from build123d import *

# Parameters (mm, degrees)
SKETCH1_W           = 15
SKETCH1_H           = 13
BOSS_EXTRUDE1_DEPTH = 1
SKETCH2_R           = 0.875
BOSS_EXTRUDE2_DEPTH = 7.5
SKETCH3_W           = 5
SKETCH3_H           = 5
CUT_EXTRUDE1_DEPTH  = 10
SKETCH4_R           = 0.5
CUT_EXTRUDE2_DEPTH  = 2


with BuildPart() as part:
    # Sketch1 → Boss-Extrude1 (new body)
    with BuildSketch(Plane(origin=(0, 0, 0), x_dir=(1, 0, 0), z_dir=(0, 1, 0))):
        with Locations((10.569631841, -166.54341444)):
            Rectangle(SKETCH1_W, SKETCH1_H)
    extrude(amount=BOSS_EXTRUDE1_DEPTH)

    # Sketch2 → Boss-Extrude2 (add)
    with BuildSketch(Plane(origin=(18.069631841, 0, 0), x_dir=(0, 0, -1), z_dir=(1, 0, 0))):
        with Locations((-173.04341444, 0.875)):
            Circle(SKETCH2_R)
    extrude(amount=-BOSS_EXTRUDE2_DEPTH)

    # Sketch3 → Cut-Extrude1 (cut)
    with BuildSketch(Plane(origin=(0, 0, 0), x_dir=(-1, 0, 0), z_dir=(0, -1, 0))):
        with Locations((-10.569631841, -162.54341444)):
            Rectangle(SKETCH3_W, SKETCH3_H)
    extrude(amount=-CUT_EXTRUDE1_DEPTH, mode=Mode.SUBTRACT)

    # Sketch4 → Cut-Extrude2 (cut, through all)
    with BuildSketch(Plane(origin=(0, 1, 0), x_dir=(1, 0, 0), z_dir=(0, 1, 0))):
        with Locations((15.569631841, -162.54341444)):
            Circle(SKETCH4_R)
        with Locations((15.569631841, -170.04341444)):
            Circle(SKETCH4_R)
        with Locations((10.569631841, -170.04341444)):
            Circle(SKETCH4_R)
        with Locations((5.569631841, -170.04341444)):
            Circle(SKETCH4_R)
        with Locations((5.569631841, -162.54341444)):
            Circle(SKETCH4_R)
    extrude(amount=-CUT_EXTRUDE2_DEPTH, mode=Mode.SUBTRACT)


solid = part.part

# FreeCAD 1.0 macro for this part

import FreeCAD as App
import Part
import Sketcher
from FreeCAD import Vector
Q = App.Units.Quantity

doc = App.newDocument("Part")
body = doc.addObject("PartDesign::Body", "Body")

# Sketch on XZ plane
sketch1 = body.newObject("Sketcher::SketchObject", "Sketch")
sketch1.AttachmentSupport = (doc.getObject("XZ_Plane"), [""])
sketch1.MapMode = "FlatFace"
sketch1.addGeometry([
    Part.LineSegment(Vector(3, 160, 0), Vector(3, 173, 0)),
    Part.LineSegment(Vector(3, 173, 0), Vector(18, 173, 0)),
    Part.LineSegment(Vector(18, 173, 0), Vector(18, 160, 0)),
    Part.LineSegment(Vector(18, 160, 0), Vector(3, 160, 0)),
], False)
sketch1.addConstraint([
    Sketcher.Constraint("Coincident", 0, 2, 1, 1),
    Sketcher.Constraint("Coincident", 1, 2, 2, 1),
    Sketcher.Constraint("Coincident", 2, 2, 3, 1),
    Sketcher.Constraint("Coincident", 3, 2, 0, 1),
    Sketcher.Constraint("Vertical", 0),
    Sketcher.Constraint("Horizontal", 1),
    Sketcher.Constraint("Vertical", 2),
    Sketcher.Constraint("Horizontal", 3),
    Sketcher.Constraint("DistanceX", 1, 1, 1, 2, Q("15 mm")),
    Sketcher.Constraint("DistanceY", 0, 1, 0, 2, Q("13 mm")),
    Sketcher.Constraint("DistanceX", -1, 1, 0, 2, Q("3.069632 mm")),
    Sketcher.Constraint("DistanceY", -1, 1, 0, 2, Q("173.043414 mm")),
])
pad1 = body.newObject("PartDesign::Pad", "Pad")
pad1.Profile = sketch1
pad1.Length = 1
pad1.Reversed = True

# Sketch on YZ plane
sketch2 = body.newObject("Sketcher::SketchObject", "Sketch001")
sketch2.AttachmentSupport = (doc.getObject("YZ_Plane"), [""])
sketch2.MapMode = "FlatFace"
sketch2.AttachmentOffset = App.Placement(Vector(0, 0, 18.069632), App.Rotation())
sketch2.addGeometry(Part.Circle(Vector(0.9, 173, 0), Vector(0, 0, 1), 0.9), False)
sketch2.addConstraint([
    Sketcher.Constraint("Diameter", 0, Q("1.75 mm")),
    Sketcher.Constraint("DistanceX", -1, 1, 0, 3, Q("0.875 mm")),
    Sketcher.Constraint("DistanceY", -1, 1, 0, 3, Q("173.043414 mm")),
])
pad2 = body.newObject("PartDesign::Pad", "Pad001")
pad2.Profile = sketch2
pad2.Length = 7.5
pad2.Reversed = True

# Sketch on XZ plane
sketch3 = body.newObject("Sketcher::SketchObject", "Sketch002")
sketch3.AttachmentSupport = (doc.getObject("XZ_Plane"), [""])
sketch3.MapMode = "FlatFace"
sketch3.addGeometry([
    Part.LineSegment(Vector(13, 160, 0), Vector(13, 165, 0)),
    Part.LineSegment(Vector(13, 165, 0), Vector(8, 165, 0)),
    Part.LineSegment(Vector(8, 165, 0), Vector(8, 160, 0)),
    Part.LineSegment(Vector(8, 160, 0), Vector(13, 160, 0)),
], False)
sketch3.addConstraint([
    Sketcher.Constraint("Coincident", 0, 2, 1, 1),
    Sketcher.Constraint("Coincident", 1, 2, 2, 1),
    Sketcher.Constraint("Coincident", 2, 2, 3, 1),
    Sketcher.Constraint("Coincident", 3, 2, 0, 1),
    Sketcher.Constraint("Vertical", 0),
    Sketcher.Constraint("Horizontal", 1),
    Sketcher.Constraint("Vertical", 2),
    Sketcher.Constraint("Horizontal", 3),
    Sketcher.Constraint("Equal", 3, 0),
    Sketcher.Constraint("DistanceX", 1, 2, 1, 1, Q("5 mm")),
    Sketcher.Constraint("DistanceX", -1, 1, 0, 2, Q("13.069632 mm")),
    Sketcher.Constraint("DistanceY", -1, 1, 0, 2, Q("165.043414 mm")),
])
pocket1 = body.newObject("PartDesign::Pocket", "Pocket")
pocket1.Profile = sketch3
pocket1.Length = 10

# Sketch on XZ plane
sketch4 = body.newObject("Sketcher::SketchObject", "Sketch003")
sketch4.AttachmentSupport = (doc.getObject("XZ_Plane"), [""])
sketch4.MapMode = "FlatFace"
sketch4.AttachmentOffset = App.Placement(Vector(0, 0, -1), App.Rotation())
sketch4.addGeometry([
    Part.Circle(Vector(15.6, 162.5, 0), Vector(0, 0, 1), 0.5),  # 0
    Part.Circle(Vector(15.6, 170, 0), Vector(0, 0, 1), 0.5),  # 1
    Part.Circle(Vector(10.6, 170, 0), Vector(0, 0, 1), 0.5),  # 2
    Part.Circle(Vector(5.6, 170, 0), Vector(0, 0, 1), 0.5),  # 3
    Part.Circle(Vector(5.6, 162.5, 0), Vector(0, 0, 1), 0.5),  # 4
], False)
sketch4.addConstraint([
    Sketcher.Constraint("Equal", 0, 1),
    Sketcher.Constraint("Equal", 1, 2),
    Sketcher.Constraint("Equal", 2, 3),
    Sketcher.Constraint("Equal", 3, 4),
    Sketcher.Constraint("Horizontal", 1, 3, 2, 3),
    Sketcher.Constraint("Horizontal", 2, 3, 3, 3),
    Sketcher.Constraint("Horizontal", 0, 3, 4, 3),
    Sketcher.Constraint("Vertical", 0, 3, 1, 3),
    Sketcher.Constraint("Vertical", 3, 3, 4, 3),
    Sketcher.Constraint("Diameter", 0, Q("1 mm")),
    Sketcher.Constraint("DistanceX", 2, 3, 1, 3, Q("5 mm")),
    Sketcher.Constraint("DistanceX", 3, 3, 2, 3, Q("5 mm")),
    Sketcher.Constraint("DistanceY", 0, 3, 1, 3, Q("7.5 mm")),
    Sketcher.Constraint("DistanceX", -1, 1, 0, 3, Q("15.569632 mm")),
    Sketcher.Constraint("DistanceY", -1, 1, 0, 3, Q("162.543414 mm")),
])
pocket2 = body.newObject("PartDesign::Pocket", "Pocket001")
pocket2.Profile = sketch4
pocket2.Type = "ThroughAll"
pocket2.Reversed = True

doc.recompute()
